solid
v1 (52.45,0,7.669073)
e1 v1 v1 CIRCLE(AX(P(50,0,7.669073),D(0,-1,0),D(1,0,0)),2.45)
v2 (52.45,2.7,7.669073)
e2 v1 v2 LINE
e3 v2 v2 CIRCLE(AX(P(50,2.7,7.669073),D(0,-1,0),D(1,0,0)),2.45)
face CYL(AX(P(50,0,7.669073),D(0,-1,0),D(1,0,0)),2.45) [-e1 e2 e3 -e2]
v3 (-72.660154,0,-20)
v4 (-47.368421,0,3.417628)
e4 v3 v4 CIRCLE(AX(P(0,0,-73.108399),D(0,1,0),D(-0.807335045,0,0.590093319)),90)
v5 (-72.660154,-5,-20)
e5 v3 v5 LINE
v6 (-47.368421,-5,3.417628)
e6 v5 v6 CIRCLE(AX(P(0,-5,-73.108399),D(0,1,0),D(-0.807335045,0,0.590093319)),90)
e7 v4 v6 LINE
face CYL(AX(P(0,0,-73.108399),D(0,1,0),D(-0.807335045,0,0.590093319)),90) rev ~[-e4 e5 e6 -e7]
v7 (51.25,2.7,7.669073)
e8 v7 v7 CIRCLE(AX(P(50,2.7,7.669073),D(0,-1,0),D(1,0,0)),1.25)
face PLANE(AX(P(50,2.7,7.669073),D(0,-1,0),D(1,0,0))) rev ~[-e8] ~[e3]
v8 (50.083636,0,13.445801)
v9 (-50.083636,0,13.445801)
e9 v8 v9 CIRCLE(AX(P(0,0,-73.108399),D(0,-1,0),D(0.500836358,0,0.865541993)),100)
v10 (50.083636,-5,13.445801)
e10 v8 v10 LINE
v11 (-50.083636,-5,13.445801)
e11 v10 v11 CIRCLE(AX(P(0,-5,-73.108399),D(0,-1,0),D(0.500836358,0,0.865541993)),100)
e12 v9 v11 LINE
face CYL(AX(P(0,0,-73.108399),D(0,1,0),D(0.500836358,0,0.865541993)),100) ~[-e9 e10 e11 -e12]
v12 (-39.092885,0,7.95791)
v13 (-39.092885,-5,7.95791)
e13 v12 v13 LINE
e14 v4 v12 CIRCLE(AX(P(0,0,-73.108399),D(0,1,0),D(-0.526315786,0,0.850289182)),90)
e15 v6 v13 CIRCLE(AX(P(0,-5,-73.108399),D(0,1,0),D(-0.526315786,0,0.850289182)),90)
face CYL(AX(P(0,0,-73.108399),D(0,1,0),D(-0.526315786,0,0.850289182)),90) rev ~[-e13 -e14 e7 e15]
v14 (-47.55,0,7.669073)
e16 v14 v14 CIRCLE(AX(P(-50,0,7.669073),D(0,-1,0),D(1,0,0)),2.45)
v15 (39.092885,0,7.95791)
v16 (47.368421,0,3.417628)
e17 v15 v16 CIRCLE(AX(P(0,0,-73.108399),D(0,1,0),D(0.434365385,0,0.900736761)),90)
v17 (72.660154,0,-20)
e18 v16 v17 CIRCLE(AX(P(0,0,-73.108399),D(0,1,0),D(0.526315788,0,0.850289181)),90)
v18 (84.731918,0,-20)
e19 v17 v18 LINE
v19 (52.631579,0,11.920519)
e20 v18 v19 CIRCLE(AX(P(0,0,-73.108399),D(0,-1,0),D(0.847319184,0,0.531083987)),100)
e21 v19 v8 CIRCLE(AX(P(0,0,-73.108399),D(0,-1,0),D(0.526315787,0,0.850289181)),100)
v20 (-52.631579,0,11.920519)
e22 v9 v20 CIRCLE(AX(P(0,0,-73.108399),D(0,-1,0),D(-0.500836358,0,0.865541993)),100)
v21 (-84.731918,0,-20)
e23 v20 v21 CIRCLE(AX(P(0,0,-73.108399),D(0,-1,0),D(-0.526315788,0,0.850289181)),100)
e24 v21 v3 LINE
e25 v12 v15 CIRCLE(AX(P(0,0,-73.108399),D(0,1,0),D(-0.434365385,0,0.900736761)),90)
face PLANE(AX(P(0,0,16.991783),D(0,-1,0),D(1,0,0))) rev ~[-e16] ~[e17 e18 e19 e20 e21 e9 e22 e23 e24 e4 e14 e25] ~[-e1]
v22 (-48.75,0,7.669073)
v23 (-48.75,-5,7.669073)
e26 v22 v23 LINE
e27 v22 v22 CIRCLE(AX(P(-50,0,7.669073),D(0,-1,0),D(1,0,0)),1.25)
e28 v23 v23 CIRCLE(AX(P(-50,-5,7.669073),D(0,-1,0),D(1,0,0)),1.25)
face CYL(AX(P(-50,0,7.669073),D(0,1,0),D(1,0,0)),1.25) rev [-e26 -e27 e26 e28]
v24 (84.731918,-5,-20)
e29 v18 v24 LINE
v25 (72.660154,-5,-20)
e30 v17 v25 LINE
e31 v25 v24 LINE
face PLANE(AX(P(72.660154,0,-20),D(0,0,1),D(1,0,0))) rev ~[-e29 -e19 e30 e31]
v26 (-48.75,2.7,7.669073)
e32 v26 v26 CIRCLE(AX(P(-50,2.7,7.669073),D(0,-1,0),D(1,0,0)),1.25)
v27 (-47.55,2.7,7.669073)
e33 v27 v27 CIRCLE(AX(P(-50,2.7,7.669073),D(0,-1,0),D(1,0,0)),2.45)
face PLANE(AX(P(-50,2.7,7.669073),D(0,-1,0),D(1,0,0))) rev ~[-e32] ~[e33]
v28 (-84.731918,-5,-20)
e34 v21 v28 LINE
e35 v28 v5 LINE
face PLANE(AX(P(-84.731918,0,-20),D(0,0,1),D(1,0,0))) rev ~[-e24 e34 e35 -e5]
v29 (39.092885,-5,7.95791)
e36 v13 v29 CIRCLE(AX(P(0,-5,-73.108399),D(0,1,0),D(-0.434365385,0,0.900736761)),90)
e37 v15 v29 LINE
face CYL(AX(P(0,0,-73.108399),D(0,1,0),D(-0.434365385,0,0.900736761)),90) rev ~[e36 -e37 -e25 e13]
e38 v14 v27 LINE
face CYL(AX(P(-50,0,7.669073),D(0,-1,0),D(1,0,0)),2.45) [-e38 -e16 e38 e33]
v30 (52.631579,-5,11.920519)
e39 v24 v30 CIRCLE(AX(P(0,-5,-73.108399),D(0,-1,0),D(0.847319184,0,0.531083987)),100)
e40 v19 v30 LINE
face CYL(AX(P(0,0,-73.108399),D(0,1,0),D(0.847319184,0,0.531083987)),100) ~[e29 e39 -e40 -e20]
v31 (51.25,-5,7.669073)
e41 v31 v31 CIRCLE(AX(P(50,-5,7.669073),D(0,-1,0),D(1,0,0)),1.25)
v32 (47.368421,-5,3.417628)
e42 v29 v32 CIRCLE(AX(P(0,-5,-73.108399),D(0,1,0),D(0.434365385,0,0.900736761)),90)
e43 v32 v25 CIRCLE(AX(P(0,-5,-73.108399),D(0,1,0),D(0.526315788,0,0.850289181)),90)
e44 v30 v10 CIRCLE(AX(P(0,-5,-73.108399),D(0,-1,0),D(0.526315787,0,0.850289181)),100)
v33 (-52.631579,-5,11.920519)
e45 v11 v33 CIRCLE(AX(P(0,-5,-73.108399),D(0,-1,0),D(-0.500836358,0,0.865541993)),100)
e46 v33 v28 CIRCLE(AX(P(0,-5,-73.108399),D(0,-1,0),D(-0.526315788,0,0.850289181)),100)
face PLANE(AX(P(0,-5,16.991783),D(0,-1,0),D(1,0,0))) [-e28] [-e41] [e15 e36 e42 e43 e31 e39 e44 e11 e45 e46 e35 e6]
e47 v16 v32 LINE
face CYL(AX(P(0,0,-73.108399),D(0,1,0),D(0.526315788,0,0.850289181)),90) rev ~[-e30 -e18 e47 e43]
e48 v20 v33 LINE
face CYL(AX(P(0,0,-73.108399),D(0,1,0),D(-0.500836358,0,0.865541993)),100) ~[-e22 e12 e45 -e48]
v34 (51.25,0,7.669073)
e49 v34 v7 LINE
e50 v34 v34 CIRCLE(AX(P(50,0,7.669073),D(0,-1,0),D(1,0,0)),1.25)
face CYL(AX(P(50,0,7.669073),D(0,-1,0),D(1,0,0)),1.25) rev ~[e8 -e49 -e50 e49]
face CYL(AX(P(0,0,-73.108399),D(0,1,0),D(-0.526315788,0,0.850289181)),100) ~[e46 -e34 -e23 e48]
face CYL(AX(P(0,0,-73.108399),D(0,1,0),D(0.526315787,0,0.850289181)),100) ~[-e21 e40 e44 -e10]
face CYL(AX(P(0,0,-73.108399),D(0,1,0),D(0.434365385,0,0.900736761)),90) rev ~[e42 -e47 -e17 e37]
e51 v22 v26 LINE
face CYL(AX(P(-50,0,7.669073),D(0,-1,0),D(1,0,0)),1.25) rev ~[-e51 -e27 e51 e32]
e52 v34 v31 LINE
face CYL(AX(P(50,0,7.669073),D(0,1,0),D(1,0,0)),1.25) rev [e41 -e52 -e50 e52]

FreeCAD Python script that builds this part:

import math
import FreeCAD as App
import Part
import Sketcher

doc = App.newDocument("Part")
params = doc.addObject("Spreadsheet::Sheet", "Params")
for row, (alias, value) in enumerate([
    ("sketch1_radius", "100 mm"),
    ("sketch1_radius2", "90 mm"),
    ("sketch1_diameter", "2.5 mm"),
    ("pad1_length", "5 mm"),
    ("sketch2_diameter", "4.9 mm"),
    ("sketch2_diameter2", "2.5 mm"),
    ("pad2_length", "2.7 mm"),
], start=1):
    params.set(f"A{row}", alias)
    params.set(f"B{row}", "=" + value)
    params.setAlias(f"B{row}", alias)

body = doc.addObject("PartDesign::Body", "Body")

sketch1 = body.newObject("Sketcher::SketchObject", "Sketch")
sketch1.AttachmentSupport = (doc.getObject("XZ_Plane"), [""])
sketch1.MapMode = "FlatFace"
sketch1.addGeometry([
    Part.ArcOfCircle(Part.Circle(App.Vector(0, -73.1, 0), App.Vector(0, 0, 1), 100), math.radians(60), math.radians(120)),
    Part.ArcOfCircle(Part.Circle(App.Vector(0, -73.1, 0), App.Vector(0, 0, 1), 100), math.radians(120.06), math.radians(121.76)),
    Part.ArcOfCircle(Part.Circle(App.Vector(0, -73.1, 0), App.Vector(0, 0, 1), 100), math.radians(122), math.radians(148)),
    Part.LineSegment(App.Vector(-84.7, -20, 0), App.Vector(-72.7, -20, 0)),
    Part.ArcOfCircle(Part.Circle(App.Vector(0, -73.1, 0), App.Vector(0, 0, 1), 90), math.radians(122), math.radians(144)),
    Part.ArcOfCircle(Part.Circle(App.Vector(0, -73.1, 0), App.Vector(0, 0, 1), 90), math.radians(115.74), math.radians(121.76)),
    Part.ArcOfCircle(Part.Circle(App.Vector(0, -73.1, 0), App.Vector(0, 0, 1), 90), math.radians(64), math.radians(116)),
    Part.ArcOfCircle(Part.Circle(App.Vector(0, -73.1, 0), App.Vector(0, 0, 1), 90), math.radians(58.24), math.radians(64.26)),
    Part.ArcOfCircle(Part.Circle(App.Vector(0, -73.1, 0), App.Vector(0, 0, 1), 90), math.radians(36), math.radians(58)),
    Part.LineSegment(App.Vector(72.7, -20, 0), App.Vector(84.7, -20, 0)),
    Part.ArcOfCircle(Part.Circle(App.Vector(0, -73.1, 0), App.Vector(0, 0, 1), 100), math.radians(32), math.radians(58)),
    Part.ArcOfCircle(Part.Circle(App.Vector(0, -73.1, 0), App.Vector(0, 0, 1), 100), math.radians(58.24), math.radians(59.94)),
    Part.Circle(App.Vector(-50, 7.7, 0), App.Vector(0, 0, 1), 1.2),
    Part.Circle(App.Vector(50, 7.7, 0), App.Vector(0, 0, 1), 1.2),
], False)
sketch1.addConstraint([
    Sketcher.Constraint("Tangent", 0, 2, 1, 1),
    Sketcher.Constraint("Tangent", 1, 2, 2, 1),
    Sketcher.Constraint("Coincident", 2, 2, 3, 1),
    Sketcher.Constraint("Coincident", 3, 2, 4, 2),
    Sketcher.Constraint("Tangent", 4, 1, 5, 2),
    Sketcher.Constraint("Tangent", 5, 1, 6, 2),
    Sketcher.Constraint("Tangent", 6, 1, 7, 2),
    Sketcher.Constraint("Tangent", 7, 1, 8, 2),
    Sketcher.Constraint("Coincident", 8, 1, 9, 1),
    Sketcher.Constraint("Coincident", 9, 2, 10, 1),
    Sketcher.Constraint("Tangent", 10, 2, 11, 1),
    Sketcher.Constraint("Tangent", 11, 2, 0, 1),
    Sketcher.Constraint("Horizontal", 3),
    Sketcher.Constraint("Horizontal", 9),
    Sketcher.Constraint("Coincident", 2, 3, 0, 3),
    Sketcher.Constraint("Coincident", 4, 3, 0, 3),
    Sketcher.Constraint("Coincident", 6, 3, 0, 3),
    Sketcher.Constraint("Coincident", 8, 3, 0, 3),
    Sketcher.Constraint("Coincident", 10, 3, 0, 3),
    Sketcher.Constraint("Equal", 12, 13),
    Sketcher.Constraint("Symmetric", 12, 3, 13, 3, -2),
    Sketcher.Constraint("Symmetric", 5, 1, 6, 1, -2),
    Sketcher.Constraint("Horizontal", 4, 1, 7, 1),
    Sketcher.Constraint("Horizontal", 3, 2, 8, 1),
    Sketcher.Constraint("Horizontal", 1, 2, 10, 2),
    Sketcher.Constraint("Horizontal", 0, 2, 11, 2),
    Sketcher.Constraint("Radius", 0, 100.0),
    Sketcher.Constraint("Radius", 4, 90.0),
    Sketcher.Constraint("Diameter", 12, 2.5),
    Sketcher.Constraint("DistanceX", 12, 3, -1, 1, 50.0),
    Sketcher.Constraint("DistanceY", 2, 2, -1, 1, 20.0),
    Sketcher.Constraint("DistanceY", 0, 3, -1, 1, 73.108399),
    Sketcher.Constraint("DistanceY", -1, 1, 0, 2, 13.445801),
    Sketcher.Constraint("DistanceX", 1, 2, -1, 1, 52.631579),
    Sketcher.Constraint("DistanceX", 4, 1, -1, 1, 47.368421),
    Sketcher.Constraint("DistanceY", -1, 1, 5, 1, 7.95791),
    Sketcher.Constraint("DistanceY", 1, 3, 12, 3, 80.777472),
])
sketch1.setExpression("Constraints[26]", "Params.sketch1_radius")
sketch1.setExpression("Constraints[27]", "Params.sketch1_radius2")
sketch1.setExpression("Constraints[28]", "Params.sketch1_diameter")
pad1 = body.newObject("PartDesign::Pad", "Pad")
pad1.Profile = sketch1
pad1.setExpression("Length", "Params.pad1_length")

sketch2 = body.newObject("Sketcher::SketchObject", "Sketch001")
sketch2.AttachmentSupport = (doc.getObject("XZ_Plane"), [""])
sketch2.MapMode = "FlatFace"
sketch2.addGeometry([
    Part.Circle(App.Vector(50, 7.7, 0), App.Vector(0, 0, 1), 2.5),
    Part.Circle(App.Vector(50, 7.7, 0), App.Vector(0, 0, 1), 1.2),
    Part.Circle(App.Vector(-50, 7.7, 0), App.Vector(0, 0, 1), 2.5),
    Part.Circle(App.Vector(-50, 7.7, 0), App.Vector(0, 0, 1), 1.2),
], False)
sketch2.addConstraint([
    Sketcher.Constraint("Coincident", 1, 3, 0, 3),
    Sketcher.Constraint("Coincident", 3, 3, 2, 3),
    Sketcher.Constraint("Equal", 0, 2),
    Sketcher.Constraint("Equal", 1, 3),
    Sketcher.Constraint("Symmetric", 0, 3, 2, 3, -2),
    Sketcher.Constraint("Diameter", 0, 4.9),
    Sketcher.Constraint("Diameter", 1, 2.5),
    Sketcher.Constraint("DistanceX", -1, 1, 0, 3, 50.0),
    Sketcher.Constraint("DistanceY", -1, 1, 0, 3, 7.669073),
])
sketch2.setExpression("Constraints[5]", "Params.sketch2_diameter")
sketch2.setExpression("Constraints[6]", "Params.sketch2_diameter2")
pad2 = body.newObject("PartDesign::Pad", "Pad001")
pad2.Profile = sketch2
pad2.setExpression("Length", "Params.pad2_length")
pad2.Reversed = True

doc.recompute()
